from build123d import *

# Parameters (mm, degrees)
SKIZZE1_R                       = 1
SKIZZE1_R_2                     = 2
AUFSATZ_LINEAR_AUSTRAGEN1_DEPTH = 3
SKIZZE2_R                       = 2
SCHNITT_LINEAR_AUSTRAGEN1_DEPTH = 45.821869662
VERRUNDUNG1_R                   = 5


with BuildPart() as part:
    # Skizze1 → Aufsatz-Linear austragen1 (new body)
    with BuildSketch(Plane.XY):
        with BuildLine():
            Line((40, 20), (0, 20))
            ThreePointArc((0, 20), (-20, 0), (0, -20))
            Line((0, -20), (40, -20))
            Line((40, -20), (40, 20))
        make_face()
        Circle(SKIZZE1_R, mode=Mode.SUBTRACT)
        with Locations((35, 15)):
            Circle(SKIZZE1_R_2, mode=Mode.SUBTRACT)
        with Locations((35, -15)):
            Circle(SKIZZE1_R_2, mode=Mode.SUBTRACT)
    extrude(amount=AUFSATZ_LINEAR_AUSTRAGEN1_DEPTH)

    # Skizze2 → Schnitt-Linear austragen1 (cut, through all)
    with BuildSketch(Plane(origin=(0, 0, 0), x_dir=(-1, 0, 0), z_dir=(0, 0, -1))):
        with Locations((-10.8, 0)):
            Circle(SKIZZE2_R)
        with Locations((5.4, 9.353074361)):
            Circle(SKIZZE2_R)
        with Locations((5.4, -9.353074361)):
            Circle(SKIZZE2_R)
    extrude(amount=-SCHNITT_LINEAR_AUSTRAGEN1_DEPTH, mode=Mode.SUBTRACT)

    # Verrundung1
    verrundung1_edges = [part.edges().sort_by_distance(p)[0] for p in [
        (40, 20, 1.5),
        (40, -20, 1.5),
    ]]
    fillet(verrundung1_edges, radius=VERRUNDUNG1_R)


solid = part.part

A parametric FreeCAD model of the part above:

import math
import FreeCAD as App
import Part
import Sketcher

V = App.Vector
Q = App.Units.Quantity


def edges_at(feature, points):
    """Names of the edges that pass closest to the given points."""
    edges = feature.Shape.Edges
    near = lambda p: min(range(len(edges)), key=lambda i: edges[i].distToShape(Part.Vertex(*p))[0])
    return sorted({f"Edge{near(p) + 1}" for p in points})

doc = App.newDocument("Part")
body = doc.addObject("PartDesign::Body", "Body")

sketch1 = body.newObject("Sketcher::SketchObject", "Sketch")
sketch1.AttachmentSupport = (doc.getObject("XY_Plane"), [""])
sketch1.MapMode = "FlatFace"
sketch1.addGeometry(Part.LineSegment(V(40, 20, 0), V(0, 20, 0)), False)
sketch1.addGeometry(Part.ArcOfCircle(Part.Circle(V(0, 0, 0), V(0, 0, 1), 20), math.radians(90), math.radians(270)), False)
sketch1.addGeometry(Part.LineSegment(V(0, -20, 0), V(40, -20, 0)), False)
sketch1.addGeometry(Part.LineSegment(V(40, -20, 0), V(40, 20, 0)), False)
sketch1.addGeometry(Part.Circle(V(35, -15, 0), V(0, 0, 1), 2), False)
sketch1.addGeometry(Part.Circle(V(0, 0, 0), V(0, 0, 1), 1), False)
sketch1.addGeometry(Part.Circle(V(35, 15, 0), V(0, 0, 1), 2), False)
sketch1.addConstraint(Sketcher.Constraint("Tangent", 0, 2, 1, 1))
sketch1.addConstraint(Sketcher.Constraint("Tangent", 1, 2, 2, 1))
sketch1.addConstraint(Sketcher.Constraint("Coincident", 2, 2, 3, 1))
sketch1.addConstraint(Sketcher.Constraint("Coincident", 3, 2, 0, 1))
sketch1.addConstraint(Sketcher.Constraint("Horizontal", 0))
sketch1.addConstraint(Sketcher.Constraint("Horizontal", 2))
sketch1.addConstraint(Sketcher.Constraint("Vertical", 3))
sketch1.addConstraint(Sketcher.Constraint("Coincident", 1, 3, -1, 1))
sketch1.addConstraint(Sketcher.Constraint("Coincident", 5, 3, -1, 1))
sketch1.addConstraint(Sketcher.Constraint("Equal", 4, 6))
sketch1.addConstraint(Sketcher.Constraint("Symmetric", 4, 3, 6, 3, -1))
sketch1.addConstraint(Sketcher.Constraint("Equal", 2, 3))
sketch1.addConstraint(Sketcher.Constraint("Diameter", 4, Q("4 mm")))
sketch1.addConstraint(Sketcher.Constraint("Diameter", 5, Q("2 mm")))
sketch1.addConstraint(Sketcher.Constraint("Radius", 1, Q("20 mm")))
sketch1.addConstraint(Sketcher.Constraint("DistanceX", -1, 1, 4, 3, Q("35 mm")))
sketch1.addConstraint(Sketcher.Constraint("DistanceY", 4, 3, -1, 1, Q("15 mm")))
pad1 = body.newObject("PartDesign::Pad", "Pad")
pad1.Profile = sketch1
pad1.Length = 3

sketch2 = body.newObject("Sketcher::SketchObject", "Sketch001")
sketch2.AttachmentSupport = (doc.getObject("XY_Plane"), [""])
sketch2.MapMode = "FlatFace"
sketch2.addGeometry(Part.Circle(V(10.8, 0, 0), V(0, 0, 1), 2), False)
sketch2.addGeometry(Part.Circle(V(-5.4, 9.4, 0), V(0, 0, 1), 2), False)
sketch2.addGeometry(Part.Circle(V(-5.4, -9.4, 0), V(0, 0, 1), 2), False)
sketch2.addConstraint(Sketcher.Constraint("Equal", 0, 1))
sketch2.addConstraint(Sketcher.Constraint("Equal", 1, 2))
sketch2.addConstraint(Sketcher.Constraint("Symmetric", 1, 3, 2, 3, -1))
sketch2.addConstraint(Sketcher.Constraint("PointOnObject", 0, 3, -1))
sketch2.addConstraint(Sketcher.Constraint("Diameter", 0, Q("4 mm")))
sketch2.addConstraint(Sketcher.Constraint("DistanceX", -1, 1, 0, 3, Q("10.8 mm")))
sketch2.addConstraint(Sketcher.Constraint("DistanceX", 1, 3, -1, 1, Q("5.4 mm")))
sketch2.addConstraint(Sketcher.Constraint("DistanceY", 2, 3, 1, 3, Q("18.706149 mm")))
pocket1 = body.newObject("PartDesign::Pocket", "Pocket")
pocket1.Profile = sketch2
pocket1.Type = "ThroughAll"
pocket1.Reversed = True
doc.recompute()

fillet = body.newObject("PartDesign::Fillet", "Fillet")
fillet.Base = (pocket1, edges_at(pocket1, [(40, 20, 1.5), (40, -20, 1.5)]))
fillet.Radius = 5

doc.recompute()
